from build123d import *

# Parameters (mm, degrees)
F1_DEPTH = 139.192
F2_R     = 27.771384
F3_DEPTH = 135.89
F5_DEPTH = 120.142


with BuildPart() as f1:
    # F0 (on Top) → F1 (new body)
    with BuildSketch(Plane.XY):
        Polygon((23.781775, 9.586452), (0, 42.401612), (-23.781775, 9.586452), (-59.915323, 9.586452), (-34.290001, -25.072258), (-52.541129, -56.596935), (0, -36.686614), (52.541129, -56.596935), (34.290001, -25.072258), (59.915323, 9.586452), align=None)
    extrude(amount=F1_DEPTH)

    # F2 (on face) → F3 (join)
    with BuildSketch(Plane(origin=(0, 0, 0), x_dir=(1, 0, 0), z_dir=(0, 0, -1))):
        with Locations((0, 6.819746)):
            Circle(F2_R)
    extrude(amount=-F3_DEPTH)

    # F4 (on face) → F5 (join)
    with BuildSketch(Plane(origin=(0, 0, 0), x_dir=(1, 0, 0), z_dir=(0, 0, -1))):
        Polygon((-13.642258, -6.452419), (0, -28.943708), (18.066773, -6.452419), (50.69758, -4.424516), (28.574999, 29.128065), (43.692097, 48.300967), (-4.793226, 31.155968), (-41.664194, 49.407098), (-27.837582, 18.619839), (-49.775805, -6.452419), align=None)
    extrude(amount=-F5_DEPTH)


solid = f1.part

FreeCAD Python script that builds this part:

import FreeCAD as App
import Part
import Sketcher

V = App.Vector
Q = App.Units.Quantity


def add_polygon(sketch, points):
    """Adds a closed chain of lines whose ends are joined by coincident constraints."""
    first, n = sketch.GeometryCount, len(points)
    for a, b in zip(points, points[1:] + points[:1]):
        sketch.addGeometry(Part.LineSegment(App.Vector(*a, 0), App.Vector(*b, 0)), False)
    for i in range(n):
        sketch.addConstraint(Sketcher.Constraint("Coincident", first + i, 2, first + (i + 1) % n, 1))

doc = App.newDocument("Part")
body = doc.addObject("PartDesign::Body", "Body")

# Sketch on XY plane
sketch1 = body.newObject("Sketcher::SketchObject", "Sketch")
sketch1.AttachmentSupport = (doc.getObject("XY_Plane"), [""])
sketch1.MapMode = "FlatFace"
add_polygon(sketch1, [(24, 10), (0, 42), (-24, 10), (-60, 10), (-34, -25), (-53, -57), (0, -37), (53, -57), (34, -25), (60, 10)])  # lines 0-9
sketch1.addConstraint([
    Sketcher.Constraint("Horizontal", 2),
    Sketcher.Constraint("Horizontal", 9),
    Sketcher.Constraint("Symmetric", 4, 2, 6, 2, -2),
    Sketcher.Constraint("Symmetric", 3, 2, 7, 2, -2),
    Sketcher.Constraint("Symmetric", 2, 2, 8, 2, -2),
    Sketcher.Constraint("PointOnObject", 0, 2, -2),
    Sketcher.Constraint("PointOnObject", 5, 2, -2),
    Sketcher.Constraint("Equal", 2, 9),
    Sketcher.Constraint("DistanceX", 3, 2, 7, 2, Q("2.7000001 in")),
    Sketcher.Constraint("DistanceX", 2, 2, 2, 1, Q("36.133548 mm")),
    Sketcher.Constraint("Distance", 3, Q("43.10317 mm")),
    Sketcher.Constraint("Distance", 4, Q("36.426761 mm")),
    Sketcher.Constraint("Distance", 5, Q("56.187108 mm")),
    Sketcher.Constraint("DistanceY", 3, 2, -1, 1, Q("25.072258 mm")),
    Sketcher.Constraint("DistanceX", 4, 2, -1, 1, Q("52.541129 mm")),
    Sketcher.Constraint("DistanceY", 1, 2, 0, 2, Q("32.81516 mm")),
    Sketcher.Constraint("DistanceY", 3, 2, 1, 2, Q("34.65871 mm")),
])
pad1 = body.newObject("PartDesign::Pad", "Pad")
pad1.Profile = sketch1
pad1.Length = Q("5.48 in")

# Sketch on XY plane
sketch2 = body.newObject("Sketcher::SketchObject", "Sketch001")
sketch2.AttachmentSupport = (doc.getObject("XY_Plane"), [""])
sketch2.MapMode = "FlatFace"
sketch2.addGeometry(Part.Circle(V(0, -7, 0), V(0, 0, 1), 28), False)
sketch2.addConstraint([
    Sketcher.Constraint("PointOnObject", 0, 3, -2),
    Sketcher.Constraint("Diameter", 0, Q("55.542768 mm")),
    Sketcher.Constraint("DistanceY", 0, 3, -1, 1, Q("6.819746 mm")),
])
pad2 = body.newObject("PartDesign::Pad", "Pad001")
pad2.Profile = sketch2
pad2.Length = Q("5.35 in")

# Sketch on XY plane
sketch3 = body.newObject("Sketcher::SketchObject", "Sketch002")
sketch3.AttachmentSupport = (doc.getObject("XY_Plane"), [""])
sketch3.MapMode = "FlatFace"
add_polygon(sketch3, [(-14, 6), (0, 29), (18, 6), (51, 4), (29, -29), (44, -48), (-5, -31), (-42, -49), (-28, -19), (-50, 6)])  # lines 0-9
sketch3.addConstraint([
    Sketcher.Constraint("Horizontal", 9),
    Sketcher.Constraint("PointOnObject", 0, 2, -2),
    Sketcher.Constraint("Horizontal", 1, 2, 8, 2),
    Sketcher.Constraint("DistanceX", 5, 2, 1, 2, Q("0.9 in")),
    Sketcher.Constraint("DistanceX", -1, 1, 3, 2, Q("1.125 in")),
    Sketcher.Constraint("DistanceY", 4, 2, 5, 2, Q("0.675 in")),
    Sketcher.Constraint("Distance", 5, Q("51.427401 mm")),
    Sketcher.Constraint("Distance", 0, Q("26.305309 mm")),
    Sketcher.Constraint("Distance", 2, Q("32.69376 mm")),
    Sketcher.Constraint("Distance", 4, Q("24.415709 mm")),
    Sketcher.Constraint("Distance", 6, Q("41.14088 mm")),
    Sketcher.Constraint("DistanceX", 9, 1, 9, 2, Q("36.133547 mm")),
    Sketcher.Constraint("DistanceY", -1, 1, 0, 2, Q("28.943708 mm")),
    Sketcher.Constraint("DistanceY", -1, 1, 1, 2, Q("6.452419 mm")),
    Sketcher.Constraint("DistanceX", -1, 1, 2, 2, Q("50.69758 mm")),
    Sketcher.Constraint("DistanceY", 5, 2, -1, 1, Q("31.155968 mm")),
    Sketcher.Constraint("DistanceY", 7, 2, -1, 1, Q("18.619839 mm")),
    Sketcher.Constraint("DistanceY", 3, 2, 2, 2, Q("33.552581 mm")),
    Sketcher.Constraint("DistanceX", 6, 2, 5, 2, Q("36.870968 mm")),
    Sketcher.Constraint("DistanceX", 7, 2, 3, 2, Q("56.412581 mm")),
])
pad3 = body.newObject("PartDesign::Pad", "Pad002")
pad3.Profile = sketch3
pad3.Length = Q("4.73 in")

doc.recompute()
